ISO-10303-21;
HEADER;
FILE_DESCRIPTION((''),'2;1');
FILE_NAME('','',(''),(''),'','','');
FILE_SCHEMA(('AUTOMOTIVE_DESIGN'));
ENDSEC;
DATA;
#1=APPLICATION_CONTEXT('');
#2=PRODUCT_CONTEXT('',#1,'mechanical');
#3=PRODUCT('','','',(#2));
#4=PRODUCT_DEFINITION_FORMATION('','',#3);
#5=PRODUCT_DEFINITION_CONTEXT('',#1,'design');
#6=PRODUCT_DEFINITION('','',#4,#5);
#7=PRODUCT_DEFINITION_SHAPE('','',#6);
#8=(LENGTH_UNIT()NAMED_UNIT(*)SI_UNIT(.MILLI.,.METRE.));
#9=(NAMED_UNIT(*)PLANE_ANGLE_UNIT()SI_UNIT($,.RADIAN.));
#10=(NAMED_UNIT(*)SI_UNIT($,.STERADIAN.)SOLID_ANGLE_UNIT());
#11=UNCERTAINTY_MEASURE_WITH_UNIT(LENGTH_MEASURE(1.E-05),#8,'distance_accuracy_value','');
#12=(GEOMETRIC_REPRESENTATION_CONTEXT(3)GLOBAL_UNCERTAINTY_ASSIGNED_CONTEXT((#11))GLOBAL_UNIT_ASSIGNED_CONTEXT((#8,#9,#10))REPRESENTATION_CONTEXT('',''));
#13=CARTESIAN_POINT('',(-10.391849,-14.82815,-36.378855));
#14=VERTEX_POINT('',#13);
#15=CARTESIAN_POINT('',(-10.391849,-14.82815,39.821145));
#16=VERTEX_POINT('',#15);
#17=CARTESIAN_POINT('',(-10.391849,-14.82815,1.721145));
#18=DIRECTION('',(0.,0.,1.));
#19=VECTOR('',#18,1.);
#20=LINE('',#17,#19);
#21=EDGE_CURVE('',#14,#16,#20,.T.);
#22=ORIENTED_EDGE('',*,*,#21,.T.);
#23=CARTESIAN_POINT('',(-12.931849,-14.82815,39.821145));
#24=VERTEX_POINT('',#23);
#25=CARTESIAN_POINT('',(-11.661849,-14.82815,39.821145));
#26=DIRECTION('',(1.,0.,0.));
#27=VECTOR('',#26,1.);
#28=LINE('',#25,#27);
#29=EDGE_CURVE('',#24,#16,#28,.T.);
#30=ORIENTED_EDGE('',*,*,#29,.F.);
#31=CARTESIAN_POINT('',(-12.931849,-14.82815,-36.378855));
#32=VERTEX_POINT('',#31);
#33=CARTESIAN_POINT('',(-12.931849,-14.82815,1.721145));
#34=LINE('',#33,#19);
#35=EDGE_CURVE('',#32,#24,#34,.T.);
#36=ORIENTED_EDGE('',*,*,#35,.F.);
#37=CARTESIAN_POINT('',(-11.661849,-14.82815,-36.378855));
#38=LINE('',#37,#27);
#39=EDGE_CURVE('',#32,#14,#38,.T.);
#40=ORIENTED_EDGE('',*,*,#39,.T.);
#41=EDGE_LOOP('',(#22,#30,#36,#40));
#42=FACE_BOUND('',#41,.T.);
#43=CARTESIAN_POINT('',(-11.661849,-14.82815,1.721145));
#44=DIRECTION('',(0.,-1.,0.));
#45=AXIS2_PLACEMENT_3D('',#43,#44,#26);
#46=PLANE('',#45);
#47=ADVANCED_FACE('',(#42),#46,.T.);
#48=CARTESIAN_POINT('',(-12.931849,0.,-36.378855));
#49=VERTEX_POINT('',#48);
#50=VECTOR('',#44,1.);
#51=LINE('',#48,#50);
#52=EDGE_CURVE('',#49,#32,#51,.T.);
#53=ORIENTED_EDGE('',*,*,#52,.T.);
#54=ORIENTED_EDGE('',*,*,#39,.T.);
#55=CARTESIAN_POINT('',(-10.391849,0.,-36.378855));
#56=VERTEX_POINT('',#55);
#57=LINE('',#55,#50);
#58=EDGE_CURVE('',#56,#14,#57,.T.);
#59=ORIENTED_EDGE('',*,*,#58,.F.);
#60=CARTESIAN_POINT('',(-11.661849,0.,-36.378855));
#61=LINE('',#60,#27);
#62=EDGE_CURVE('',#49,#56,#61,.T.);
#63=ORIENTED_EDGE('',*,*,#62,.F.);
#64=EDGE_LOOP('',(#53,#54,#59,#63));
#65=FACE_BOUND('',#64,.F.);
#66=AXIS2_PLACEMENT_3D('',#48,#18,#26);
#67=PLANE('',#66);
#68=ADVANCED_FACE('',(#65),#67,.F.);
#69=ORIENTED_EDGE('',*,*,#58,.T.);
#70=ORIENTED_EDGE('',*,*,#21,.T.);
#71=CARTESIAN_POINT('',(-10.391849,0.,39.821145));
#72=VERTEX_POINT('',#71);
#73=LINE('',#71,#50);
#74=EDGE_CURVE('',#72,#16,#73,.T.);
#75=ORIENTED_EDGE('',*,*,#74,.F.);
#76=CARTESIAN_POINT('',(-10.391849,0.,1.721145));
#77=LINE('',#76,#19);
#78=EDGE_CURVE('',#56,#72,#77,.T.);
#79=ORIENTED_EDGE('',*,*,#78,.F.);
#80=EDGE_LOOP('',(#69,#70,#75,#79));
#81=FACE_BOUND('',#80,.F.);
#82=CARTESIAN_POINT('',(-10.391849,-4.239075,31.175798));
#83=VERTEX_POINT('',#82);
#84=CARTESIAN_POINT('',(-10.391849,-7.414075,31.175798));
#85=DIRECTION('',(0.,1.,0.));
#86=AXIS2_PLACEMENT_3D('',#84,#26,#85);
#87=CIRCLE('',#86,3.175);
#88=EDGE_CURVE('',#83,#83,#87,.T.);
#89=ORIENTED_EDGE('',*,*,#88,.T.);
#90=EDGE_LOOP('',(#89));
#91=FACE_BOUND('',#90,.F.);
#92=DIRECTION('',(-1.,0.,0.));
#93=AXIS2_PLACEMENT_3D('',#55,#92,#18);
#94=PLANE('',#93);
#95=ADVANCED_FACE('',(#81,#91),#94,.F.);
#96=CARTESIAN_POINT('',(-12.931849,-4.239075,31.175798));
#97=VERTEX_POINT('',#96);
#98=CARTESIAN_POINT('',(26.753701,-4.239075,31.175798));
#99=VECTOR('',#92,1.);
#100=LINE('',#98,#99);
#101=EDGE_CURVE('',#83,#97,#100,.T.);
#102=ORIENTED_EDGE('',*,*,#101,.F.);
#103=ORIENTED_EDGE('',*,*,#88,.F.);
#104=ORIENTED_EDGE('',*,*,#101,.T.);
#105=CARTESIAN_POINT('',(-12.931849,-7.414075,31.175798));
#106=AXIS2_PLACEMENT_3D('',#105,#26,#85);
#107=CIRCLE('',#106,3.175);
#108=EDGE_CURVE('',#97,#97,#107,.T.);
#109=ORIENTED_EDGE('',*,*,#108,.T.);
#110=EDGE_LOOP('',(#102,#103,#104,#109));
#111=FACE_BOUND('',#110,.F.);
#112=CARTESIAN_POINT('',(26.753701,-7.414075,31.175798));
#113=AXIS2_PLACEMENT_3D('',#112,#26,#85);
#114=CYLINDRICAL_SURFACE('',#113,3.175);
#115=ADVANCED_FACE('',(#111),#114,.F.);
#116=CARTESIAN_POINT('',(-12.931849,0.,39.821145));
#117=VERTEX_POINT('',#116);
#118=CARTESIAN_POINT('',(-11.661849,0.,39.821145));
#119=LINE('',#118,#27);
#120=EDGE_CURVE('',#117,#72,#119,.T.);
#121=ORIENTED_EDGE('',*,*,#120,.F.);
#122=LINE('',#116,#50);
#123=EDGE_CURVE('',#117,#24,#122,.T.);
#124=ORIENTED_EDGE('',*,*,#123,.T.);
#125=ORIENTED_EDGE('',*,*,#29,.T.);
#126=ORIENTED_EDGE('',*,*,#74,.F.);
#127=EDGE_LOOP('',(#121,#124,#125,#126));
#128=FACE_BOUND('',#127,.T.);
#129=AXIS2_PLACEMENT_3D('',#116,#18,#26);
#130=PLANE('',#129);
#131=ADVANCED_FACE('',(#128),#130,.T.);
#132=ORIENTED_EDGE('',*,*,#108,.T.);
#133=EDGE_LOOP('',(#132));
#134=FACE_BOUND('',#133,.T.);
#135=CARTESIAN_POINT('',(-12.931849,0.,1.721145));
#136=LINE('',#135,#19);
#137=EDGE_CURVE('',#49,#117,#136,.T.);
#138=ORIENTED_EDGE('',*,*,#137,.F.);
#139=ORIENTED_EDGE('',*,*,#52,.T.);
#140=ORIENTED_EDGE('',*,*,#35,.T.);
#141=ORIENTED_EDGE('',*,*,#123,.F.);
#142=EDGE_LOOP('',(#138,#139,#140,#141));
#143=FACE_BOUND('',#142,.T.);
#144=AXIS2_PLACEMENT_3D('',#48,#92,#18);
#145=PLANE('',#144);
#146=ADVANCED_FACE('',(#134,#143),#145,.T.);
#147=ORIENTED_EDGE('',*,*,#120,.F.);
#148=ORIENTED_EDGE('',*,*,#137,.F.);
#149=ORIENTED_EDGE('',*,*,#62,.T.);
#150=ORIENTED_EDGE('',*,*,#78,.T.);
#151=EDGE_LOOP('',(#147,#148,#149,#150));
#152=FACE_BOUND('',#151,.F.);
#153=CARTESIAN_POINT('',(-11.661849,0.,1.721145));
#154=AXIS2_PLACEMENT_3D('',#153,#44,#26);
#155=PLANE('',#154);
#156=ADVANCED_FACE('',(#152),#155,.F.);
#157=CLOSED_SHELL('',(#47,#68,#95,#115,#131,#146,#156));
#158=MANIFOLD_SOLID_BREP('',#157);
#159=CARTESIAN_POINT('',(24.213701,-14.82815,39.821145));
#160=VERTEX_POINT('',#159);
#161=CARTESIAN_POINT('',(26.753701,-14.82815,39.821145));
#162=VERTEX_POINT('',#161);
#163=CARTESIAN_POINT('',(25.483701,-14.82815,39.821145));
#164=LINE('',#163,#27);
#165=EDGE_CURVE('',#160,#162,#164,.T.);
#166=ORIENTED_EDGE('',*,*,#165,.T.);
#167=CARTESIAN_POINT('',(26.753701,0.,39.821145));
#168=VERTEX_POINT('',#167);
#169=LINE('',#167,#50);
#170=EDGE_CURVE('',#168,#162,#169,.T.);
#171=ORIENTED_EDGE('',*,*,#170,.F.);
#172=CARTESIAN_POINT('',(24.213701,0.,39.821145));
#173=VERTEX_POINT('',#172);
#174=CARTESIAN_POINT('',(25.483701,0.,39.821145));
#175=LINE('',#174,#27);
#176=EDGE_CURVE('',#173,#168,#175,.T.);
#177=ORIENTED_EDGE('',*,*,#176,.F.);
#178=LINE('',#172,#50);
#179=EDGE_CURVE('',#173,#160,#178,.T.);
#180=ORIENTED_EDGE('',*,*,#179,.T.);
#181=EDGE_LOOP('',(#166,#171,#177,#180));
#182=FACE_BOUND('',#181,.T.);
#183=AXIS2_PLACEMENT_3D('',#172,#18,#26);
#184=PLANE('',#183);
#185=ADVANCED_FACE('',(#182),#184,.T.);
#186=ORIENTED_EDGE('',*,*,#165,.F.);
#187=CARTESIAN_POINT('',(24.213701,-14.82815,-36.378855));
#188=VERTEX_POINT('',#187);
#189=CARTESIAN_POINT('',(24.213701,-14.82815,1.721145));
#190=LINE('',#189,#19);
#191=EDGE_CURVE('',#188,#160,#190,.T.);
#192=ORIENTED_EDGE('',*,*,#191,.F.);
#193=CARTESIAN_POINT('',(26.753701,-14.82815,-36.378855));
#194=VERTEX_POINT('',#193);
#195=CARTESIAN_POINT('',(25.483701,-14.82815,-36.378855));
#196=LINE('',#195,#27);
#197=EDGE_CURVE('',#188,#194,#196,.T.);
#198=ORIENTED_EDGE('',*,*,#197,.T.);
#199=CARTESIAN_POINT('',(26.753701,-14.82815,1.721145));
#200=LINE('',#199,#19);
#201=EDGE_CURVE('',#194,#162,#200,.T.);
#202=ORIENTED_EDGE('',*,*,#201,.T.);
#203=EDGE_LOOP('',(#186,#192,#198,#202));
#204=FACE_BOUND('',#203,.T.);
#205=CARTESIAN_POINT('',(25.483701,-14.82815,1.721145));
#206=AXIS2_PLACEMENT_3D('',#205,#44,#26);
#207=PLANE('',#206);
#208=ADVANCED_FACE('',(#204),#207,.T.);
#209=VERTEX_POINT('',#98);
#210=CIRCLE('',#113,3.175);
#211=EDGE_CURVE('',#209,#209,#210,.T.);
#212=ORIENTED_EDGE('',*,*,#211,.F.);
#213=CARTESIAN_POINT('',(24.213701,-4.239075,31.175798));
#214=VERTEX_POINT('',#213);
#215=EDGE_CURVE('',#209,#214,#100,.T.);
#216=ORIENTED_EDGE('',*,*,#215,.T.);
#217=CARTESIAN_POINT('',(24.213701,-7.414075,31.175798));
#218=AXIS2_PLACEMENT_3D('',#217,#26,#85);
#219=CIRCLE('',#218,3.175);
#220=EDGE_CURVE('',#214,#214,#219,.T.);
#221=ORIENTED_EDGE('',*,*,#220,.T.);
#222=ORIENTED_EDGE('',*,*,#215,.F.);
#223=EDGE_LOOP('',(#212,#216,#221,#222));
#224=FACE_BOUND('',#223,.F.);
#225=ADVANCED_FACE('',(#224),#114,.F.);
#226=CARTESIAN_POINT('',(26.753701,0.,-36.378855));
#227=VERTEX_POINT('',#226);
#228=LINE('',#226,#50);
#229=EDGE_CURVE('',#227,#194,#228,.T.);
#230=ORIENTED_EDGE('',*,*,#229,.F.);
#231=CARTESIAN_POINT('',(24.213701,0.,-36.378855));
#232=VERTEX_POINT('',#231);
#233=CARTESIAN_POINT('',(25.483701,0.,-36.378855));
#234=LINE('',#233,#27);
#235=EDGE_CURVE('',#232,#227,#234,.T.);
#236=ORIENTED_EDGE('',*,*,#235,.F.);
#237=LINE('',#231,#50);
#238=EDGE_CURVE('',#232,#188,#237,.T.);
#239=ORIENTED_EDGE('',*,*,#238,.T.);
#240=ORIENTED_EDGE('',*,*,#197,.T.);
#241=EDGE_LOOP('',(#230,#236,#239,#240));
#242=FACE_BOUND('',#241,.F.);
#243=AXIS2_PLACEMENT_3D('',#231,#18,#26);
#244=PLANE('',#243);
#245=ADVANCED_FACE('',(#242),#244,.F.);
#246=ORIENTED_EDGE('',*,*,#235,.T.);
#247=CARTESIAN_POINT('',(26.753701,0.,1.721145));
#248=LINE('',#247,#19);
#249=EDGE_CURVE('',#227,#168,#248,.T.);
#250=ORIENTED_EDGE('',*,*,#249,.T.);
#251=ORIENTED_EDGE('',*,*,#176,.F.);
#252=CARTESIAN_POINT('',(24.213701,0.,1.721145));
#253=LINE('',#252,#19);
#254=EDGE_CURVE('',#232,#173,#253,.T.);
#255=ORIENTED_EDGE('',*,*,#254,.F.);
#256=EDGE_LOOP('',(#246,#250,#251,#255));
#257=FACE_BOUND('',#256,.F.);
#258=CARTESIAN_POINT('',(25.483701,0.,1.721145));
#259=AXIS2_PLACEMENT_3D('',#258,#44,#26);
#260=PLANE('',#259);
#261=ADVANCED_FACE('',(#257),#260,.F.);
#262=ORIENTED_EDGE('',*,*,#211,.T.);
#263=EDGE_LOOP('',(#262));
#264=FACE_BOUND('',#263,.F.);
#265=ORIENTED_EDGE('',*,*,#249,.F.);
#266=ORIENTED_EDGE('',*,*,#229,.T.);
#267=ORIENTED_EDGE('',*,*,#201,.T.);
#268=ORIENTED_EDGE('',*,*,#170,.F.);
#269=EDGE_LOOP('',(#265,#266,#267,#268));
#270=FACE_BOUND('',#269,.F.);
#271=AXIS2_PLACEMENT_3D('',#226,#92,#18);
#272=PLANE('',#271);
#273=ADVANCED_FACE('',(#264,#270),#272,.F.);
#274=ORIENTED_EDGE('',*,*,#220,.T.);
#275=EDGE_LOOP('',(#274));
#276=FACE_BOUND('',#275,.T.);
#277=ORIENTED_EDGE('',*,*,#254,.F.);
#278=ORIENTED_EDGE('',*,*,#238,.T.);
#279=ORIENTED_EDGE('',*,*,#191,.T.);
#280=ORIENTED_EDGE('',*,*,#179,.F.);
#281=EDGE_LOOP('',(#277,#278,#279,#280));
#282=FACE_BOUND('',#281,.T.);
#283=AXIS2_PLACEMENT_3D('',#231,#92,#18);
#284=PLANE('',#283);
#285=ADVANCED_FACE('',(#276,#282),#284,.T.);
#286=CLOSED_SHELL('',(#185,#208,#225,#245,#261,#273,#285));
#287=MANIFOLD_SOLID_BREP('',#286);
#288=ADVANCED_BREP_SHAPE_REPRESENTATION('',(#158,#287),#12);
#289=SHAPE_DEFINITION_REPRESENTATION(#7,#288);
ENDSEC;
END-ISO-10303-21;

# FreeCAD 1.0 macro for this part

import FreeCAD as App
import Part
import Sketcher

V = App.Vector
Q = App.Units.Quantity

doc = App.newDocument("Part")
body = doc.addObject("PartDesign::Body", "Body")
body.AllowCompound = True

sketch1 = body.newObject("Sketcher::SketchObject", "Sketch")
sketch1.AttachmentSupport = (doc.getObject("XZ_Plane"), [""])
sketch1.MapMode = "FlatFace"
sketch1.addGeometry([
    Part.LineSegment(V(-12.931849, 39.821145, 0), V(-12.931849, -36.378855, 0)),
    Part.LineSegment(V(-12.931849, -36.378855, 0), V(-10.391849, -36.378855, 0)),
    Part.LineSegment(V(-10.391849, -36.378855, 0), V(-10.391849, 39.821145, 0)),
    Part.LineSegment(V(-10.391849, 39.821145, 0), V(-12.931849, 39.821145, 0)),
    Part.LineSegment(V(24.213701, 39.821145, 0), V(24.213701, -36.378855, 0)),
    Part.LineSegment(V(24.213701, -36.378855, 0), V(26.753701, -36.378855, 0)),
    Part.LineSegment(V(26.753701, -36.378855, 0), V(26.753701, 39.821145, 0)),
    Part.LineSegment(V(26.753701, 39.821145, 0), V(24.213701, 39.821145, 0)),
], False)
sketch1.addConstraint([
    Sketcher.Constraint("Coincident", 0, 2, 1, 1),
    Sketcher.Constraint("Coincident", 1, 2, 2, 1),
    Sketcher.Constraint("Coincident", 2, 2, 3, 1),
    Sketcher.Constraint("Coincident", 3, 2, 0, 1),
    Sketcher.Constraint("Coincident", 4, 2, 5, 1),
    Sketcher.Constraint("Coincident", 5, 2, 6, 1),
    Sketcher.Constraint("Coincident", 6, 2, 7, 1),
    Sketcher.Constraint("Coincident", 7, 2, 4, 1),
    Sketcher.Constraint("Vertical", 0),
    Sketcher.Constraint("Horizontal", 1),
    Sketcher.Constraint("Vertical", 2),
    Sketcher.Constraint("Horizontal", 3),
    Sketcher.Constraint("Vertical", 4),
    Sketcher.Constraint("Horizontal", 5),
    Sketcher.Constraint("Vertical", 6),
    Sketcher.Constraint("Horizontal", 7),
    Sketcher.Constraint("Horizontal", 1, 2, 4, 2),
    Sketcher.Constraint("Horizontal", 3, 2, 6, 2),
    Sketcher.Constraint("Equal", 3, 5),
    Sketcher.Constraint("DistanceY", 0, 2, 0, 1, Q("3 in")),
    Sketcher.Constraint("DistanceX", 1, 1, 1, 2, Q("0.1 in")),
    Sketcher.Constraint("DistanceX", -1, 1, 4, 2, 24.213701),
    Sketcher.Constraint("DistanceX", 0, 2, -1, 1, 12.931849),
    Sketcher.Constraint("DistanceY", 0, 2, -1, 1, 36.378855),
])
pad1 = body.newObject("PartDesign::Pad", "Pad")
pad1.Profile = sketch1
pad1.Length = 14.82815

sketch2 = body.newObject("Sketcher::SketchObject", "Sketch001")
sketch2.AttachmentSupport = (doc.getObject("YZ_Plane"), [""])
sketch2.MapMode = "FlatFace"
sketch2.AttachmentOffset = App.Placement(V(0, 0, 26.753701), App.Rotation())
sketch2.addGeometry(Part.Circle(V(-7.414075, 31.175798, 0), V(0, 0, 1), 3.175), False)
sketch2.addConstraint([
    Sketcher.Constraint("Diameter", 0, Q("0.25 in")),
    Sketcher.Constraint("DistanceY", -1, 1, 0, 3, 31.175798),
    Sketcher.Constraint("DistanceX", 0, 3, -1, 1, 7.414075),
])
pocket1 = body.newObject("PartDesign::Pocket", "Pocket")
pocket1.Profile = sketch2
pocket1.Length = 50.97066

doc.recompute()
